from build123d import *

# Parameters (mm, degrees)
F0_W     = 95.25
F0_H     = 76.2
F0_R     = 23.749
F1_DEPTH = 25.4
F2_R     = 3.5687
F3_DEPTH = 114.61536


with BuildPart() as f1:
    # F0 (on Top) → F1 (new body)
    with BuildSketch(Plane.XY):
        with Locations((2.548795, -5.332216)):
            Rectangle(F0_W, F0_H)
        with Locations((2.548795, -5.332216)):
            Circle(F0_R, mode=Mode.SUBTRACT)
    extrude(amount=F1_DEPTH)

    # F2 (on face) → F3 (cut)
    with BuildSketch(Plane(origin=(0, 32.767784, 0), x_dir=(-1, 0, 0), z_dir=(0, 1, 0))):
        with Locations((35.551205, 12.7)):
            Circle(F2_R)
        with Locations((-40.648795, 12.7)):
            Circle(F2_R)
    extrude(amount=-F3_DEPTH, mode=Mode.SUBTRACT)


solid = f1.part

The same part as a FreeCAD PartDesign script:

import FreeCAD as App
import Part
import Sketcher
Q = App.Units.Quantity


def add_polygon(sketch, points):
    """Adds a closed chain of lines whose ends are joined by coincident constraints."""
    first, n = sketch.GeometryCount, len(points)
    for a, b in zip(points, points[1:] + points[:1]):
        sketch.addGeometry(Part.LineSegment(App.Vector(*a, 0), App.Vector(*b, 0)), False)
    for i in range(n):
        sketch.addConstraint(Sketcher.Constraint("Coincident", first + i, 2, first + (i + 1) % n, 1))

doc = App.newDocument("Part")
body = doc.addObject("PartDesign::Body", "Body")

sketch1 = body.newObject("Sketcher::SketchObject", "Sketch")
sketch1.AttachmentSupport = (doc.getObject("XY_Plane"), [""])
sketch1.MapMode = "FlatFace"
add_polygon(sketch1, [(-45, 33), (-45, -43), (50, -43), (50, 33)])
sketch1.addGeometry(Part.Circle(App.Vector(3, -5, 0), App.Vector(0, 0, 1), 24), False)
sketch1.addConstraint(Sketcher.Constraint("Vertical", 0))
sketch1.addConstraint(Sketcher.Constraint("Horizontal", 1))
sketch1.addConstraint(Sketcher.Constraint("Vertical", 2))
sketch1.addConstraint(Sketcher.Constraint("Horizontal", 3))
sketch1.addConstraint(Sketcher.Constraint("Diameter", 4, Q("1.87 in")))
sketch1.addConstraint(Sketcher.Constraint("DistanceY", 0, 2, 0, 1, Q("3 in")))
sketch1.addConstraint(Sketcher.Constraint("DistanceX", 1, 1, 1, 2, Q("3.75 in")))
sketch1.addConstraint(Sketcher.Constraint("DistanceY", 0, 2, 4, 3, Q("1.5 in")))
sketch1.addConstraint(Sketcher.Constraint("DistanceX", 0, 2, 4, 3, Q("1.875 in")))
sketch1.addConstraint(Sketcher.Constraint("DistanceX", -1, 1, 4, 3, Q("2.548795 mm")))
sketch1.addConstraint(Sketcher.Constraint("DistanceY", 4, 3, -1, 1, Q("5.332216 mm")))
pad1 = body.newObject("PartDesign::Pad", "Pad")
pad1.Profile = sketch1
pad1.Length = Q("1 in")

sketch2 = body.newObject("Sketcher::SketchObject", "Sketch001")
sketch2.AttachmentSupport = (doc.getObject("XZ_Plane"), [""])
sketch2.MapMode = "FlatFace"
sketch2.AttachmentOffset = App.Placement(App.Vector(0, 0, -32.767784), App.Rotation())
sketch2.addGeometry(Part.Circle(App.Vector(-35.6, 12.7, 0), App.Vector(0, 0, 1), 3.6), False)
sketch2.addGeometry(Part.Circle(App.Vector(40.6, 12.7, 0), App.Vector(0, 0, 1), 3.6), False)
sketch2.addConstraint(Sketcher.Constraint("Equal", 0, 1))
sketch2.addConstraint(Sketcher.Constraint("Horizontal", 0, 3, 1, 3))
sketch2.addConstraint(Sketcher.Constraint("Diameter", 0, Q("0.281 in")))
sketch2.addConstraint(Sketcher.Constraint("DistanceX", 0, 3, 1, 3, Q("3 in")))
sketch2.addConstraint(Sketcher.Constraint("DistanceY", -1, 1, 0, 3, Q("0.5 in")))
sketch2.addConstraint(Sketcher.Constraint("DistanceX", 0, 3, -1, 1, Q("35.551205 mm")))
pocket1 = body.newObject("PartDesign::Pocket", "Pocket")
pocket1.Profile = sketch2
pocket1.Length = 114.61536
pocket1.Reversed = True

doc.recompute()
